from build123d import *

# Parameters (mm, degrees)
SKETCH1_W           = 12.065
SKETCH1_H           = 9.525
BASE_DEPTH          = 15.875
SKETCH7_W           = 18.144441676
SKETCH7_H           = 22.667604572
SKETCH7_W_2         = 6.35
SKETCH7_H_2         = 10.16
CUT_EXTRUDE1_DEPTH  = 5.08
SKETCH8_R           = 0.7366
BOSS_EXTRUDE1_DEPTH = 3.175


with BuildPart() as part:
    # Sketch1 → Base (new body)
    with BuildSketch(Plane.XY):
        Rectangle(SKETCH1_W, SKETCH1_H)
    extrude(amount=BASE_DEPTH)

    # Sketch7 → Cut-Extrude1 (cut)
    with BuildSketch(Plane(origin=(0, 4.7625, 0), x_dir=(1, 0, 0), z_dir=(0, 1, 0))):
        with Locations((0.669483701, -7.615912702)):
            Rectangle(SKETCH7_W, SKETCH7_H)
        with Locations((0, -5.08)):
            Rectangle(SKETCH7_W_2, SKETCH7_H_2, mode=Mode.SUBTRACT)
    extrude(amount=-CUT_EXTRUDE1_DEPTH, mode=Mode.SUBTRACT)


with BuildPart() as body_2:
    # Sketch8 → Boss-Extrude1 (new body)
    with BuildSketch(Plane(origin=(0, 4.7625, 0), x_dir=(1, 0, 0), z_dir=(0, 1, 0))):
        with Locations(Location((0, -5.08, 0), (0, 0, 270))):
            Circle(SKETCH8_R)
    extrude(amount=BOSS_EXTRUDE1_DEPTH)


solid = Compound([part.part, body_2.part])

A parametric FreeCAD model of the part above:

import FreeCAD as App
import Part
import Sketcher
Q = App.Units.Quantity


def add_polygon(sketch, points):
    """Adds a closed chain of lines whose ends are joined by coincident constraints."""
    first, n = sketch.GeometryCount, len(points)
    for a, b in zip(points, points[1:] + points[:1]):
        sketch.addGeometry(Part.LineSegment(App.Vector(*a, 0), App.Vector(*b, 0)), False)
    for i in range(n):
        sketch.addConstraint(Sketcher.Constraint("Coincident", first + i, 2, first + (i + 1) % n, 1))

doc = App.newDocument("Part")
params = doc.addObject("Spreadsheet::Sheet", "Params")
for row, (alias, value) in enumerate([
    ("sketch1_width", "0.475 in"),
    ("sketch1_height", "0.375 in"),
    ("pad1_length", "0.625 in"),
    ("sketch2_height", "0.4 in"),
    ("sketch2_width", "0.25 in"),
    ("pocket1_length", "0.2 in"),
    ("sketch3_diameter", "0.058 in"),
    ("pad2_length", "0.125 in"),
], start=1):
    params.set(f"A{row}", alias)
    params.set(f"B{row}", "=" + value)
    params.setAlias(f"B{row}", alias)

body = doc.addObject("PartDesign::Body", "Body")

sketch1 = body.newObject("Sketcher::SketchObject", "Sketch")
sketch1.AttachmentSupport = (doc.getObject("XY_Plane"), [""])
sketch1.MapMode = "FlatFace"
add_polygon(sketch1, [(-6.0325, 4.7625), (-6.0325, -4.7625), (6.0325, -4.7625), (6.0325, 4.7625)])
sketch1.addConstraint(Sketcher.Constraint("Vertical", 0))
sketch1.addConstraint(Sketcher.Constraint("Horizontal", 1))
sketch1.addConstraint(Sketcher.Constraint("Vertical", 2))
sketch1.addConstraint(Sketcher.Constraint("Horizontal", 3))
sketch1.addConstraint(Sketcher.Constraint("Symmetric", 0, 2, 2, 2, -1, 1))
sketch1.addConstraint(Sketcher.Constraint("DistanceX", 1, 1, 1, 2, Q("0.475 in")))
sketch1.addConstraint(Sketcher.Constraint("DistanceY", 0, 2, 0, 1, Q("0.375 in")))
sketch1.setExpression("Constraints[9]", "Params.sketch1_width")
sketch1.setExpression("Constraints[10]", "Params.sketch1_height")
pad1 = body.newObject("PartDesign::Pad", "Pad")
pad1.Profile = sketch1
pad1.setExpression("Length", "Params.pad1_length")

sketch2 = body.newObject("Sketcher::SketchObject", "Sketch001")
sketch2.AttachmentSupport = (doc.getObject("XZ_Plane"), [""])
sketch2.MapMode = "FlatFace"
sketch2.AttachmentOffset = App.Placement(App.Vector(0, 0, -0.1875 * 25.4), App.Rotation())
add_polygon(sketch2, [(-8.402737, -3.71789), (-8.402737, 18.949715), (9.741705, 18.949715), (9.741705, -3.71789)])
add_polygon(sketch2, [(3.175, 10.16), (-3.175, 10.16), (-3.175, 0), (3.175, 0)])
sketch2.addConstraint(Sketcher.Constraint("Vertical", 0))
sketch2.addConstraint(Sketcher.Constraint("Horizontal", 1))
sketch2.addConstraint(Sketcher.Constraint("Vertical", 2))
sketch2.addConstraint(Sketcher.Constraint("Horizontal", 3))
sketch2.addConstraint(Sketcher.Constraint("Horizontal", 4))
sketch2.addConstraint(Sketcher.Constraint("Vertical", 5))
sketch2.addConstraint(Sketcher.Constraint("Horizontal", 6))
sketch2.addConstraint(Sketcher.Constraint("Vertical", 7))
sketch2.addConstraint(Sketcher.Constraint("Symmetric", 5, 2, 6, 2, -1, 1))
sketch2.addConstraint(Sketcher.Constraint("DistanceY", 5, 2, 5, 1, Q("0.4 in")))
sketch2.addConstraint(Sketcher.Constraint("DistanceX", 4, 2, 4, 1, Q("0.25 in")))
sketch2.addConstraint(Sketcher.Constraint("DistanceX", 1, 1, 1, 2, 18.144442))
sketch2.addConstraint(Sketcher.Constraint("DistanceY", 0, 1, 0, 2, 22.667605))
sketch2.addConstraint(Sketcher.Constraint("DistanceY", 2, 2, -1, 1, 3.71789))
sketch2.addConstraint(Sketcher.Constraint("DistanceX", 0, 2, -1, 1, 8.402737))
sketch2.setExpression("Constraints[17]", "Params.sketch2_height")
sketch2.setExpression("Constraints[18]", "Params.sketch2_width")
pocket1 = body.newObject("PartDesign::Pocket", "Pocket")
pocket1.Profile = sketch2
pocket1.setExpression("Length", "Params.pocket1_length")
pocket1.Reversed = True
body2 = doc.addObject("PartDesign::Body", "Body001")

sketch3 = body2.newObject("Sketcher::SketchObject", "Sketch002")
sketch3.AttachmentSupport = (doc.getObject("XZ_Plane001"), [""])
sketch3.MapMode = "FlatFace"
sketch3.AttachmentOffset = App.Placement(App.Vector(0, 0, -0.1875 * 25.4), App.Rotation())
sketch3.addGeometry(Part.Circle(App.Vector(0, 5.08, 0), App.Vector(0, 0, 1), 0.7366), False)
sketch3.addConstraint(Sketcher.Constraint("PointOnObject", 0, 3, -2))
sketch3.addConstraint(Sketcher.Constraint("Diameter", 0, Q("0.058 in")))
sketch3.addConstraint(Sketcher.Constraint("DistanceY", -1, 1, 0, 3, Q("0.2 in")))
sketch3.setExpression("Constraints[1]", "Params.sketch3_diameter")
pad2 = body2.newObject("PartDesign::Pad", "Pad001")
pad2.Profile = sketch3
pad2.setExpression("Length", "Params.pad2_length")
pad2.Reversed = True

doc.recompute()
